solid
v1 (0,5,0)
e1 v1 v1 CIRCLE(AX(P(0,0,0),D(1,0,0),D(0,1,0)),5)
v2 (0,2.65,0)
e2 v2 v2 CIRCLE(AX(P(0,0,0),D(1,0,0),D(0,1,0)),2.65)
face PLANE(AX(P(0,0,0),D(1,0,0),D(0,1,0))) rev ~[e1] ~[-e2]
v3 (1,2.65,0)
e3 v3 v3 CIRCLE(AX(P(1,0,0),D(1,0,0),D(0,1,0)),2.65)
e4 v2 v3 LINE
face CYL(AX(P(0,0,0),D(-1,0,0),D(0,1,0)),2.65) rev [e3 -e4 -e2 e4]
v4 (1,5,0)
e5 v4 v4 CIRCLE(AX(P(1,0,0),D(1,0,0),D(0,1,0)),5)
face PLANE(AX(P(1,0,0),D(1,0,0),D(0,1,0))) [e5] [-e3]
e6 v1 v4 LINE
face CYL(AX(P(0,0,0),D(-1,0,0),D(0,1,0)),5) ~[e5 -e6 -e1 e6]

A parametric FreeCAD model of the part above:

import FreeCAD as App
import Part
import Sketcher

V = App.Vector
Q = App.Units.Quantity

doc = App.newDocument("Part")
body = doc.addObject("PartDesign::Body", "Body")

# Sketch on YZ plane
sketch1 = body.newObject("Sketcher::SketchObject", "Sketch")
sketch1.AttachmentSupport = (doc.getObject("YZ_Plane"), [""])
sketch1.MapMode = "FlatFace"
sketch1.addGeometry([
    Part.Circle(V(0, 0, 0), V(0, 0, 1), 5),
    Part.Circle(V(0, 0, 0), V(0, 0, 1), 2.6),
], False)
sketch1.addConstraint([
    Sketcher.Constraint("Coincident", 0, 3, -1, 1),
    Sketcher.Constraint("Coincident", 1, 3, -1, 1),
    Sketcher.Constraint("Diameter", 0, Q("10 mm")),
    Sketcher.Constraint("Diameter", 1, Q("5.3 mm")),
])
pad1 = body.newObject("PartDesign::Pad", "Pad")
pad1.Profile = sketch1
pad1.Length = 1

doc.recompute()
